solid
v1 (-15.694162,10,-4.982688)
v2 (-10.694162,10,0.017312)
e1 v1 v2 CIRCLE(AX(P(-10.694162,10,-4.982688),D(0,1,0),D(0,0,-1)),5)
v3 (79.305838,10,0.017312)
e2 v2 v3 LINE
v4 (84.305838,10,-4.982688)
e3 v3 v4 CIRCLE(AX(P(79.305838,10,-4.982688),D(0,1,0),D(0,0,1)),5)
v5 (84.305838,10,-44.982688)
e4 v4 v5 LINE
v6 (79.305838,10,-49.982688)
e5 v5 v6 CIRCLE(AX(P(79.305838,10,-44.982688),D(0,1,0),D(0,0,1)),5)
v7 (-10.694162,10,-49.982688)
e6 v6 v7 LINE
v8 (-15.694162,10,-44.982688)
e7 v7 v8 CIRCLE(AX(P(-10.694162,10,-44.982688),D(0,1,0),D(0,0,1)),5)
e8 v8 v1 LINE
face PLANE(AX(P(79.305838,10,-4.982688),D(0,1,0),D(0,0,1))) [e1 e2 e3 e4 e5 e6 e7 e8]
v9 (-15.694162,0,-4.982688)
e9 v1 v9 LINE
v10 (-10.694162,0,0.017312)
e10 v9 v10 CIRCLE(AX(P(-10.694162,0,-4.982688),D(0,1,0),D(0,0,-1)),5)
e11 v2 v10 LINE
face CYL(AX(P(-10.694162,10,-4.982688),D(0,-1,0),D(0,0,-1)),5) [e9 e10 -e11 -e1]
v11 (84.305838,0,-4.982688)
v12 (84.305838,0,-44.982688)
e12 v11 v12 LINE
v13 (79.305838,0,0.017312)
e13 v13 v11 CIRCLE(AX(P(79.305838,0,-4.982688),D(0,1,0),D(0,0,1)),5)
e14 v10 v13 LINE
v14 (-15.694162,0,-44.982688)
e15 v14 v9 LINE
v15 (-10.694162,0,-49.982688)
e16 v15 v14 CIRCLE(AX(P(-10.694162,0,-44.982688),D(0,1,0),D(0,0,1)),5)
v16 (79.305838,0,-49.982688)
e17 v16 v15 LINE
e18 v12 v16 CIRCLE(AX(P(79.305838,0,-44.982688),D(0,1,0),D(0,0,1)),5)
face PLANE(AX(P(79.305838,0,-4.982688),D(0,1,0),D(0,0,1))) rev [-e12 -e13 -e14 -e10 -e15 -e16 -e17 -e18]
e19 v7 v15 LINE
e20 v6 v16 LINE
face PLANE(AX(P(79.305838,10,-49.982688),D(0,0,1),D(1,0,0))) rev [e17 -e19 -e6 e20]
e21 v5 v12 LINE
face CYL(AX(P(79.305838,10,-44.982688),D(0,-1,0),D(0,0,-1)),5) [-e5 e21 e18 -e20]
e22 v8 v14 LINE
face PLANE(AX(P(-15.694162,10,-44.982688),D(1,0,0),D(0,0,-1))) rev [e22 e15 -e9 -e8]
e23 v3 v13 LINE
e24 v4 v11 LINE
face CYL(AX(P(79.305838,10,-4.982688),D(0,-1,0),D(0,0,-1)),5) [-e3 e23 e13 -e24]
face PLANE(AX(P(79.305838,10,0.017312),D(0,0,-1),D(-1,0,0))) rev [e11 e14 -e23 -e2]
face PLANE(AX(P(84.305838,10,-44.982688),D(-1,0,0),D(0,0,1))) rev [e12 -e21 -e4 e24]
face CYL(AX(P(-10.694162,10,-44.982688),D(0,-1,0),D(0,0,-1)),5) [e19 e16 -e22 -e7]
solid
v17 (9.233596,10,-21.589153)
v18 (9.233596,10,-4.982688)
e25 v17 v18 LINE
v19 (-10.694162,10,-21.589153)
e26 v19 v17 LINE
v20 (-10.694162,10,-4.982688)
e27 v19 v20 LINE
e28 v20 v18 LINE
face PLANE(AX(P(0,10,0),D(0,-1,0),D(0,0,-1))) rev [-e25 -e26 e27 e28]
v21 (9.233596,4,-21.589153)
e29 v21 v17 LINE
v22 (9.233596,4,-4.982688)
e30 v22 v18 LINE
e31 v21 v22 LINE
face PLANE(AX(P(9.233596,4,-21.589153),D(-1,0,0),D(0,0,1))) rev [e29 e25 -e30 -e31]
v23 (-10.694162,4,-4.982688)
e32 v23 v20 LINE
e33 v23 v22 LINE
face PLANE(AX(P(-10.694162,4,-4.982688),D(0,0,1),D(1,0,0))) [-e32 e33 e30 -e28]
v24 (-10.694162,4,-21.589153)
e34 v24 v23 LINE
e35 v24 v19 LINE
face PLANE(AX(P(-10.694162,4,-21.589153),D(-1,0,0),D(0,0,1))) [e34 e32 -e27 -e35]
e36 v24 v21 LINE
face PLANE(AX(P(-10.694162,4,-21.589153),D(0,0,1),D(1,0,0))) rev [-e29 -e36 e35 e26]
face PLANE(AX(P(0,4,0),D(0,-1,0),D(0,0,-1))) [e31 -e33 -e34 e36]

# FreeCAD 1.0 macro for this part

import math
import FreeCAD as App
import Part
import Sketcher
Q = App.Units.Quantity

doc = App.newDocument("Part")
params = doc.addObject("Spreadsheet::Sheet", "Params")
for row, (alias, value) in enumerate([
    ("sketch1_radius", "5 mm"),
    ("sketch1_width", "90 mm"),
    ("sketch1_height", "40 mm"),
    ("pad1_length", "10 mm"),
    ("pad2_length", "6 mm"),
], start=1):
    params.set(f"A{row}", alias)
    params.set(f"B{row}", "=" + value)
    params.setAlias(f"B{row}", alias)

body = doc.addObject("PartDesign::Body", "Body")

sketch1 = body.newObject("Sketcher::SketchObject", "Sketch")
sketch1.AttachmentSupport = (doc.getObject("XZ_Plane"), [""])
sketch1.MapMode = "FlatFace"
sketch1.addGeometry(Part.LineSegment(App.Vector(79, -50, 0), App.Vector(-11, -50, 0)), False)
sketch1.addGeometry(Part.ArcOfCircle(Part.Circle(App.Vector(-11, -45, 0), App.Vector(0, 0, 1), 5), math.radians(180), math.radians(270)), False)
sketch1.addGeometry(Part.LineSegment(App.Vector(-16, -45, 0), App.Vector(-16, -5, 0)), False)
sketch1.addGeometry(Part.ArcOfCircle(Part.Circle(App.Vector(-11, -5, 0), App.Vector(0, 0, 1), 5), math.radians(90), math.radians(180)), False)
sketch1.addGeometry(Part.LineSegment(App.Vector(-11, 0, 0), App.Vector(79, 0, 0)), False)
sketch1.addGeometry(Part.ArcOfCircle(Part.Circle(App.Vector(79, -5, 0), App.Vector(0, 0, 1), 5), math.radians(0), math.radians(90)), False)
sketch1.addGeometry(Part.LineSegment(App.Vector(84, -5, 0), App.Vector(84, -45, 0)), False)
sketch1.addGeometry(Part.ArcOfCircle(Part.Circle(App.Vector(79, -45, 0), App.Vector(0, 0, 1), 5), math.radians(-90), math.radians(0)), False)
sketch1.addConstraint(Sketcher.Constraint("Tangent", 0, 2, 1, 2))
sketch1.addConstraint(Sketcher.Constraint("Tangent", 1, 1, 2, 1))
sketch1.addConstraint(Sketcher.Constraint("Tangent", 2, 2, 3, 2))
sketch1.addConstraint(Sketcher.Constraint("Tangent", 3, 1, 4, 1))
sketch1.addConstraint(Sketcher.Constraint("Tangent", 4, 2, 5, 2))
sketch1.addConstraint(Sketcher.Constraint("Tangent", 5, 1, 6, 1))
sketch1.addConstraint(Sketcher.Constraint("Tangent", 6, 2, 7, 2))
sketch1.addConstraint(Sketcher.Constraint("Tangent", 7, 1, 0, 1))
sketch1.addConstraint(Sketcher.Constraint("Horizontal", 0))
sketch1.addConstraint(Sketcher.Constraint("Vertical", 2))
sketch1.addConstraint(Sketcher.Constraint("Horizontal", 4))
sketch1.addConstraint(Sketcher.Constraint("Vertical", 6))
sketch1.addConstraint(Sketcher.Constraint("Equal", 1, 3))
sketch1.addConstraint(Sketcher.Constraint("Equal", 3, 5))
sketch1.addConstraint(Sketcher.Constraint("Equal", 5, 7))
sketch1.addConstraint(Sketcher.Constraint("Radius", 1, Q("5 mm")))
sketch1.addConstraint(Sketcher.Constraint("DistanceX", 0, 2, 0, 1, Q("90 mm")))
sketch1.addConstraint(Sketcher.Constraint("DistanceY", 2, 1, 2, 2, Q("40 mm")))
sketch1.addConstraint(Sketcher.Constraint("DistanceX", 1, 3, -1, 1, Q("10.694162 mm")))
sketch1.addConstraint(Sketcher.Constraint("DistanceY", 1, 3, -1, 1, Q("44.982688 mm")))
sketch1.setExpression("Constraints[15]", "Params.sketch1_radius")
sketch1.setExpression("Constraints[16]", "Params.sketch1_width")
sketch1.setExpression("Constraints[17]", "Params.sketch1_height")
pad1 = body.newObject("PartDesign::Pad", "Pad")
pad1.Profile = sketch1
pad1.setExpression("Length", "Params.pad1_length")
pad1.Reversed = True
body2 = doc.addObject("PartDesign::Body", "Body001")

sketch2 = body2.newObject("Sketcher::SketchObject", "Sketch001")
sketch2.AttachmentSupport = (doc.getObject("XZ_Plane001"), [""])
sketch2.MapMode = "FlatFace"
sketch2.AttachmentOffset = App.Placement(App.Vector(0, 0, -10), App.Rotation())
sketch2.addGeometry(Part.LineSegment(App.Vector(-11, -22, 0), App.Vector(-11, -5, 0)), False)
sketch2.addGeometry(Part.LineSegment(App.Vector(-11, -5, 0), App.Vector(9, -5, 0)), False)
sketch2.addGeometry(Part.LineSegment(App.Vector(9, -5, 0), App.Vector(9, -22, 0)), False)
sketch2.addGeometry(Part.LineSegment(App.Vector(9, -22, 0), App.Vector(-11, -22, 0)), False)
sketch2.addConstraint(Sketcher.Constraint("Coincident", 0, 2, 1, 1))
sketch2.addConstraint(Sketcher.Constraint("Coincident", 1, 2, 2, 1))
sketch2.addConstraint(Sketcher.Constraint("Coincident", 2, 2, 3, 1))
sketch2.addConstraint(Sketcher.Constraint("Coincident", 3, 2, 0, 1))
sketch2.addConstraint(Sketcher.Constraint("Vertical", 0))
sketch2.addConstraint(Sketcher.Constraint("Horizontal", 1))
sketch2.addConstraint(Sketcher.Constraint("Vertical", 2))
sketch2.addConstraint(Sketcher.Constraint("Horizontal", 3))
sketch2.addConstraint(Sketcher.Constraint("DistanceX", 1, 1, 1, 2, Q("19.927758 mm")))
sketch2.addConstraint(Sketcher.Constraint("DistanceY", 0, 1, 0, 2, Q("16.606465 mm")))
sketch2.addConstraint(Sketcher.Constraint("DistanceX", 0, 2, -1, 1, Q("10.694162 mm")))
sketch2.addConstraint(Sketcher.Constraint("DistanceY", 0, 2, -1, 1, Q("4.982688 mm")))
pad2 = body2.newObject("PartDesign::Pad", "Pad001")
pad2.Profile = sketch2
pad2.setExpression("Length", "Params.pad2_length")

doc.recompute()
